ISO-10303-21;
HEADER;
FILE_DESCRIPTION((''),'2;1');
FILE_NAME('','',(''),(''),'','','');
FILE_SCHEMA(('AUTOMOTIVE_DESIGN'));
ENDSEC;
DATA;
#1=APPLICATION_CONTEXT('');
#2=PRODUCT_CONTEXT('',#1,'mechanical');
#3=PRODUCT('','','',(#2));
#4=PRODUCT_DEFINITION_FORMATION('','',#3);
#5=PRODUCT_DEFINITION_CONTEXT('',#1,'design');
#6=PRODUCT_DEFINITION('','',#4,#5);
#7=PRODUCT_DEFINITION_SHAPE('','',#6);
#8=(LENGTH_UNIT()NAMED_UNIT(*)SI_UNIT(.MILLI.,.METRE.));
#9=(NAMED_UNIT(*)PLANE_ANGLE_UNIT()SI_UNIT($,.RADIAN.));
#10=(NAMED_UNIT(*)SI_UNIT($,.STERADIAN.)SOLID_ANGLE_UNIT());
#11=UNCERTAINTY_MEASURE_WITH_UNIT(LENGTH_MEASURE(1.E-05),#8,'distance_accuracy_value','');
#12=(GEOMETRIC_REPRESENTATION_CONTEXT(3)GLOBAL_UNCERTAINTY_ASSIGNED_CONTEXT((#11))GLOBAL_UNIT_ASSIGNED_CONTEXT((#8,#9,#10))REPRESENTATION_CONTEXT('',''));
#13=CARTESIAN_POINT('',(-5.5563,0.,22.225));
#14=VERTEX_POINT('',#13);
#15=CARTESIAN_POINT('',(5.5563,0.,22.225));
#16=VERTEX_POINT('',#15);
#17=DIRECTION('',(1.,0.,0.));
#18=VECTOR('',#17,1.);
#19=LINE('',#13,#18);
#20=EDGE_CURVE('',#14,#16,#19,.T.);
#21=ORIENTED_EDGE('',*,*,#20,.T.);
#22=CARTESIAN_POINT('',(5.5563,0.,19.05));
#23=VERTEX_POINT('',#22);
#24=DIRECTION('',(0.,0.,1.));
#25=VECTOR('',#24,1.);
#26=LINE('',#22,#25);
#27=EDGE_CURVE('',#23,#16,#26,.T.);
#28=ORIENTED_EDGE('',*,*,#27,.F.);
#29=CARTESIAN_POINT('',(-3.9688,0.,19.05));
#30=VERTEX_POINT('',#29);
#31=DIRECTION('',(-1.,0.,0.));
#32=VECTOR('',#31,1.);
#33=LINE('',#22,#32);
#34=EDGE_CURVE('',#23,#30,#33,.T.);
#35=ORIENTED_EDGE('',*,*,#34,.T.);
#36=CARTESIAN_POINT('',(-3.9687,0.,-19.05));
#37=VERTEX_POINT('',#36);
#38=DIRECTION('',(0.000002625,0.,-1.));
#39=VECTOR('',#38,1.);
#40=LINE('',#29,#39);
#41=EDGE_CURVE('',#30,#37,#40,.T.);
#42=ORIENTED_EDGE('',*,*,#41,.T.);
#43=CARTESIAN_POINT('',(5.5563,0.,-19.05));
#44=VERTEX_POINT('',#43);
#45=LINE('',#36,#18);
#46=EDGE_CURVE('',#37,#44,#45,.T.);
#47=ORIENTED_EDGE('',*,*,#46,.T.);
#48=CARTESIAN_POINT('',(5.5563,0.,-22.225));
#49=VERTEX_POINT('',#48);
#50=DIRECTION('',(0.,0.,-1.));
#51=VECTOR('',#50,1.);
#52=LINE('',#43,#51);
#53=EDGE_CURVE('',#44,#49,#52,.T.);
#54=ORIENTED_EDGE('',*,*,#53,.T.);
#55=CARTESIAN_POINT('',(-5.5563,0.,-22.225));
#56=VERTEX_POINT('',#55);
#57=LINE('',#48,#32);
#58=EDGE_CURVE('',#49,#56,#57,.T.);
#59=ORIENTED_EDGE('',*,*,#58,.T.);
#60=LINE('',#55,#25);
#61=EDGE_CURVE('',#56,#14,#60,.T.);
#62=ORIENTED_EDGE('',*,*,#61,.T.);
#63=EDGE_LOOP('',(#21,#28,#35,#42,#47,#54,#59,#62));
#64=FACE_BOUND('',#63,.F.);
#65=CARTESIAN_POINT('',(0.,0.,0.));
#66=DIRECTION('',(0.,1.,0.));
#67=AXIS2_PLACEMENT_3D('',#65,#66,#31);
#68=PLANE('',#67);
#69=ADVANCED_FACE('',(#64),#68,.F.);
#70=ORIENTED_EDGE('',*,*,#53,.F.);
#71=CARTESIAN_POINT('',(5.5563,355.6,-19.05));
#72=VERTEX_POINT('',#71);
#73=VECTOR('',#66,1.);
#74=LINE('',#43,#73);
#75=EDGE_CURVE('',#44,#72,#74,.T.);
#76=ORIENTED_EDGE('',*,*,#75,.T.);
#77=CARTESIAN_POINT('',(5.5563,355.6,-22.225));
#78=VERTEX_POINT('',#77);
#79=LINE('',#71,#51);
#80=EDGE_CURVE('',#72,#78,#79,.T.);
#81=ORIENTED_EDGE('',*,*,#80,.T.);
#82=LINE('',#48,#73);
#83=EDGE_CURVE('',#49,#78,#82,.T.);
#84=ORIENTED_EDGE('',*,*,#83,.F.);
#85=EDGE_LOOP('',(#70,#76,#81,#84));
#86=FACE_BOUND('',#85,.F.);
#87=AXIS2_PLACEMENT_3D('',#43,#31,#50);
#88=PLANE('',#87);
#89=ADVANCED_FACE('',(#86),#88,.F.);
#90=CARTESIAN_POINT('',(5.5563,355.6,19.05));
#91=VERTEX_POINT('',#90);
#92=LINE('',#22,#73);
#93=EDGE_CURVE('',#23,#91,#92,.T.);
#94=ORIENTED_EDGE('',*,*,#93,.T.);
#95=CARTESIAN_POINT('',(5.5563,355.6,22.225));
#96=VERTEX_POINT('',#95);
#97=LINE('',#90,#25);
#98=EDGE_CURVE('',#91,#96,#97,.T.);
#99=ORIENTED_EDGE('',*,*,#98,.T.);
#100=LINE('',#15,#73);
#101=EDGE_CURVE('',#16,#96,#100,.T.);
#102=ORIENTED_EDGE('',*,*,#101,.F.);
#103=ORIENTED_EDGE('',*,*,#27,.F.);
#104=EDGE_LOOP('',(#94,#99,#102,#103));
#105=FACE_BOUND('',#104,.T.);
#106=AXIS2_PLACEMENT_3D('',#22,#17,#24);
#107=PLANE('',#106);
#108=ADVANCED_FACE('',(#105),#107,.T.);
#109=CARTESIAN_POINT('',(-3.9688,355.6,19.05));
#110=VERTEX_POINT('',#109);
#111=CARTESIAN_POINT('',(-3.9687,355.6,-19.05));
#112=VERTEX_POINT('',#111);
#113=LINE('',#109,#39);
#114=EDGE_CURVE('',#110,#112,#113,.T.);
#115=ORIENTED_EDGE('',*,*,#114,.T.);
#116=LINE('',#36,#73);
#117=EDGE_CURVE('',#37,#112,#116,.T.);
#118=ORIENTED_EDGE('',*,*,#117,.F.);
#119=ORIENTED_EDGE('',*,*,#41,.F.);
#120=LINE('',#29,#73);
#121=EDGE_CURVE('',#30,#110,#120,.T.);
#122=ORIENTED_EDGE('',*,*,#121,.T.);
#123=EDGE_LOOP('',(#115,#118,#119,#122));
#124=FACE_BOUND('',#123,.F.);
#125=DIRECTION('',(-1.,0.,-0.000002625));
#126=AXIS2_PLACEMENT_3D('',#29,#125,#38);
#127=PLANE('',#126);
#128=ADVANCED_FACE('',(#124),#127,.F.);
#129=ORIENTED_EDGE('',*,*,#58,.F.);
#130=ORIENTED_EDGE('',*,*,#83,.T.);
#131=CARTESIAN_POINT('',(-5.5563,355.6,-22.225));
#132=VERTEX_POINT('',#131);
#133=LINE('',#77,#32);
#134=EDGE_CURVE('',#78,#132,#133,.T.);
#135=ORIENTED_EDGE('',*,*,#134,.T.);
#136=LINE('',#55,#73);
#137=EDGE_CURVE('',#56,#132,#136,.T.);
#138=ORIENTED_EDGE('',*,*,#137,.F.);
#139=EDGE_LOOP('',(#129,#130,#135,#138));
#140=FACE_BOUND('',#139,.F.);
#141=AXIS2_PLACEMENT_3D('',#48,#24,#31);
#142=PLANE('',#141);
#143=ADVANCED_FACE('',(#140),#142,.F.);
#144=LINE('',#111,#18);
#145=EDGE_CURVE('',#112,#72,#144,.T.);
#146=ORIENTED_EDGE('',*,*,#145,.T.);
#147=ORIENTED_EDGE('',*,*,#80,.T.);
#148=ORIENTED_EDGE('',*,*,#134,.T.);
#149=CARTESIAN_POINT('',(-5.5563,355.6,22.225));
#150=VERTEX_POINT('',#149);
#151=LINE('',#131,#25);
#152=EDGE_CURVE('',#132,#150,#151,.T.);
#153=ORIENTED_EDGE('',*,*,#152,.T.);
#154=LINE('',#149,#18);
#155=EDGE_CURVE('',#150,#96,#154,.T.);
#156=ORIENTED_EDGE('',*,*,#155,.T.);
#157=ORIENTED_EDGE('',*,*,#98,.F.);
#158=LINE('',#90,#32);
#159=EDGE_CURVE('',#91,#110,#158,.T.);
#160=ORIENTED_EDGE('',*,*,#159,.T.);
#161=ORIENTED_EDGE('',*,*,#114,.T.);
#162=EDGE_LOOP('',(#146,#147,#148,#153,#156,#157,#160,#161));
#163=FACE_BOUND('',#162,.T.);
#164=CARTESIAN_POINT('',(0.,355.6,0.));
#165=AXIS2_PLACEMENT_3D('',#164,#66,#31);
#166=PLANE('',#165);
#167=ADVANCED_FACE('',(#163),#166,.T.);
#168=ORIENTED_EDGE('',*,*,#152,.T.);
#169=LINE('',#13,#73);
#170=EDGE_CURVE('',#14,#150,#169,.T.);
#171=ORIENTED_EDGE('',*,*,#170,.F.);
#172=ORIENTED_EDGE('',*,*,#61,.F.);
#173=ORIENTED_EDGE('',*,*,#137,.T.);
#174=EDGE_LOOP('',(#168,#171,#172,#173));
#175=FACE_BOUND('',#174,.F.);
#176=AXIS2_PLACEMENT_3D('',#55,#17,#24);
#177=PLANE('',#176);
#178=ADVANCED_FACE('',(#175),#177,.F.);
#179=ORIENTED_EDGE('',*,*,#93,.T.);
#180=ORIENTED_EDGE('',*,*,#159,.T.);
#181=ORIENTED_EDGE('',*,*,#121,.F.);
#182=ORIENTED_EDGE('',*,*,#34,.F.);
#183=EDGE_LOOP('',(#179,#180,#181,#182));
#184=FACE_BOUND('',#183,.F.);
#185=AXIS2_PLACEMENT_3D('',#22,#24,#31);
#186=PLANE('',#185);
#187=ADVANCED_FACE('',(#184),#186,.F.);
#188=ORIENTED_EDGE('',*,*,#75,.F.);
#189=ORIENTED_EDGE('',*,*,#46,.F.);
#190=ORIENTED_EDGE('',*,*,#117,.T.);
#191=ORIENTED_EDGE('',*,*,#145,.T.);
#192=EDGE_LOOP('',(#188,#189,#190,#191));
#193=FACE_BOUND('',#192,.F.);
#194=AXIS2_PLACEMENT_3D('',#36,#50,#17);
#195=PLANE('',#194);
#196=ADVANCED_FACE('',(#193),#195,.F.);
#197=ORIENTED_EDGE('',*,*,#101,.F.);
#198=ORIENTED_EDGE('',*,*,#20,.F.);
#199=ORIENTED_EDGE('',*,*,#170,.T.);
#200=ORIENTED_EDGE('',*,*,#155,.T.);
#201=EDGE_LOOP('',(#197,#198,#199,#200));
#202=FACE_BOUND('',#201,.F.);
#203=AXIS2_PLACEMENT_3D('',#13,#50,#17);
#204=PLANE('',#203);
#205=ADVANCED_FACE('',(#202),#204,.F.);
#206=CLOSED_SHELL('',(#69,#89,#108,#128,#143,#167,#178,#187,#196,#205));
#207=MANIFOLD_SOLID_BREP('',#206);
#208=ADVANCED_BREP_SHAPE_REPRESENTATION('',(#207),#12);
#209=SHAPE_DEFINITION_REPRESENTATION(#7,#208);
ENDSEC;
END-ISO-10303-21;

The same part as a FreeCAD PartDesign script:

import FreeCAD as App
import Part
import Sketcher

V = App.Vector
Q = App.Units.Quantity


def add_polygon(sketch, points):
    """Adds a closed chain of lines whose ends are joined by coincident constraints."""
    first, n = sketch.GeometryCount, len(points)
    for a, b in zip(points, points[1:] + points[:1]):
        sketch.addGeometry(Part.LineSegment(App.Vector(*a, 0), App.Vector(*b, 0)), False)
    for i in range(n):
        sketch.addConstraint(Sketcher.Constraint("Coincident", first + i, 2, first + (i + 1) % n, 1))

doc = App.newDocument("Part")
body = doc.addObject("PartDesign::Body", "Body")

# Sketch on XZ plane
sketch1 = doc.addObject("Sketcher::SketchObject", "Sketch")
body.addObject(sketch1)
sketch1.AttachmentSupport = (doc.XZ_Plane, [""])
sketch1.MapMode = "FlatFace"
add_polygon(sketch1, [(5.5563, -19.05), (5.5563, -22.225), (-5.5563, -22.225), (-5.5563, 22.225), (5.5563, 22.225), (5.5563, 19.05), (-3.9688, 19.05), (-3.9687, -19.05)])  # lines 0-7
sketch1.addConstraint([
    Sketcher.Constraint("Vertical", 0),
    Sketcher.Constraint("Horizontal", 1),
    Sketcher.Constraint("Vertical", 2),
    Sketcher.Constraint("Horizontal", 3),
    Sketcher.Constraint("Vertical", 4),
    Sketcher.Constraint("Horizontal", 5),
    Sketcher.Constraint("Vertical", 6),
    Sketcher.Constraint("Horizontal", 7),
    Sketcher.Constraint("Symmetric", 0, 2, 2, 2, -1, 1),
    Sketcher.Constraint("Symmetric", 4, 2, 7, 2, -1),
    Sketcher.Constraint("DistanceY", 2, 1, 2, 2, Q("1.75 in")),
    Sketcher.Constraint("DistanceX", 1, 2, 1, 1, Q("0.4375 in")),
    Sketcher.Constraint("DistanceX", 5, 2, 5, 1, Q("0.375 in")),
    Sketcher.Constraint("DistanceY", 6, 2, 6, 1, Q("1.5 in")),
])
pad1 = doc.addObject("PartDesign::Pad", "Pad")
body.addObject(pad1)
pad1.Profile = sketch1
pad1.Length = Q("14 in")
pad1.Reversed = True

doc.recompute()
